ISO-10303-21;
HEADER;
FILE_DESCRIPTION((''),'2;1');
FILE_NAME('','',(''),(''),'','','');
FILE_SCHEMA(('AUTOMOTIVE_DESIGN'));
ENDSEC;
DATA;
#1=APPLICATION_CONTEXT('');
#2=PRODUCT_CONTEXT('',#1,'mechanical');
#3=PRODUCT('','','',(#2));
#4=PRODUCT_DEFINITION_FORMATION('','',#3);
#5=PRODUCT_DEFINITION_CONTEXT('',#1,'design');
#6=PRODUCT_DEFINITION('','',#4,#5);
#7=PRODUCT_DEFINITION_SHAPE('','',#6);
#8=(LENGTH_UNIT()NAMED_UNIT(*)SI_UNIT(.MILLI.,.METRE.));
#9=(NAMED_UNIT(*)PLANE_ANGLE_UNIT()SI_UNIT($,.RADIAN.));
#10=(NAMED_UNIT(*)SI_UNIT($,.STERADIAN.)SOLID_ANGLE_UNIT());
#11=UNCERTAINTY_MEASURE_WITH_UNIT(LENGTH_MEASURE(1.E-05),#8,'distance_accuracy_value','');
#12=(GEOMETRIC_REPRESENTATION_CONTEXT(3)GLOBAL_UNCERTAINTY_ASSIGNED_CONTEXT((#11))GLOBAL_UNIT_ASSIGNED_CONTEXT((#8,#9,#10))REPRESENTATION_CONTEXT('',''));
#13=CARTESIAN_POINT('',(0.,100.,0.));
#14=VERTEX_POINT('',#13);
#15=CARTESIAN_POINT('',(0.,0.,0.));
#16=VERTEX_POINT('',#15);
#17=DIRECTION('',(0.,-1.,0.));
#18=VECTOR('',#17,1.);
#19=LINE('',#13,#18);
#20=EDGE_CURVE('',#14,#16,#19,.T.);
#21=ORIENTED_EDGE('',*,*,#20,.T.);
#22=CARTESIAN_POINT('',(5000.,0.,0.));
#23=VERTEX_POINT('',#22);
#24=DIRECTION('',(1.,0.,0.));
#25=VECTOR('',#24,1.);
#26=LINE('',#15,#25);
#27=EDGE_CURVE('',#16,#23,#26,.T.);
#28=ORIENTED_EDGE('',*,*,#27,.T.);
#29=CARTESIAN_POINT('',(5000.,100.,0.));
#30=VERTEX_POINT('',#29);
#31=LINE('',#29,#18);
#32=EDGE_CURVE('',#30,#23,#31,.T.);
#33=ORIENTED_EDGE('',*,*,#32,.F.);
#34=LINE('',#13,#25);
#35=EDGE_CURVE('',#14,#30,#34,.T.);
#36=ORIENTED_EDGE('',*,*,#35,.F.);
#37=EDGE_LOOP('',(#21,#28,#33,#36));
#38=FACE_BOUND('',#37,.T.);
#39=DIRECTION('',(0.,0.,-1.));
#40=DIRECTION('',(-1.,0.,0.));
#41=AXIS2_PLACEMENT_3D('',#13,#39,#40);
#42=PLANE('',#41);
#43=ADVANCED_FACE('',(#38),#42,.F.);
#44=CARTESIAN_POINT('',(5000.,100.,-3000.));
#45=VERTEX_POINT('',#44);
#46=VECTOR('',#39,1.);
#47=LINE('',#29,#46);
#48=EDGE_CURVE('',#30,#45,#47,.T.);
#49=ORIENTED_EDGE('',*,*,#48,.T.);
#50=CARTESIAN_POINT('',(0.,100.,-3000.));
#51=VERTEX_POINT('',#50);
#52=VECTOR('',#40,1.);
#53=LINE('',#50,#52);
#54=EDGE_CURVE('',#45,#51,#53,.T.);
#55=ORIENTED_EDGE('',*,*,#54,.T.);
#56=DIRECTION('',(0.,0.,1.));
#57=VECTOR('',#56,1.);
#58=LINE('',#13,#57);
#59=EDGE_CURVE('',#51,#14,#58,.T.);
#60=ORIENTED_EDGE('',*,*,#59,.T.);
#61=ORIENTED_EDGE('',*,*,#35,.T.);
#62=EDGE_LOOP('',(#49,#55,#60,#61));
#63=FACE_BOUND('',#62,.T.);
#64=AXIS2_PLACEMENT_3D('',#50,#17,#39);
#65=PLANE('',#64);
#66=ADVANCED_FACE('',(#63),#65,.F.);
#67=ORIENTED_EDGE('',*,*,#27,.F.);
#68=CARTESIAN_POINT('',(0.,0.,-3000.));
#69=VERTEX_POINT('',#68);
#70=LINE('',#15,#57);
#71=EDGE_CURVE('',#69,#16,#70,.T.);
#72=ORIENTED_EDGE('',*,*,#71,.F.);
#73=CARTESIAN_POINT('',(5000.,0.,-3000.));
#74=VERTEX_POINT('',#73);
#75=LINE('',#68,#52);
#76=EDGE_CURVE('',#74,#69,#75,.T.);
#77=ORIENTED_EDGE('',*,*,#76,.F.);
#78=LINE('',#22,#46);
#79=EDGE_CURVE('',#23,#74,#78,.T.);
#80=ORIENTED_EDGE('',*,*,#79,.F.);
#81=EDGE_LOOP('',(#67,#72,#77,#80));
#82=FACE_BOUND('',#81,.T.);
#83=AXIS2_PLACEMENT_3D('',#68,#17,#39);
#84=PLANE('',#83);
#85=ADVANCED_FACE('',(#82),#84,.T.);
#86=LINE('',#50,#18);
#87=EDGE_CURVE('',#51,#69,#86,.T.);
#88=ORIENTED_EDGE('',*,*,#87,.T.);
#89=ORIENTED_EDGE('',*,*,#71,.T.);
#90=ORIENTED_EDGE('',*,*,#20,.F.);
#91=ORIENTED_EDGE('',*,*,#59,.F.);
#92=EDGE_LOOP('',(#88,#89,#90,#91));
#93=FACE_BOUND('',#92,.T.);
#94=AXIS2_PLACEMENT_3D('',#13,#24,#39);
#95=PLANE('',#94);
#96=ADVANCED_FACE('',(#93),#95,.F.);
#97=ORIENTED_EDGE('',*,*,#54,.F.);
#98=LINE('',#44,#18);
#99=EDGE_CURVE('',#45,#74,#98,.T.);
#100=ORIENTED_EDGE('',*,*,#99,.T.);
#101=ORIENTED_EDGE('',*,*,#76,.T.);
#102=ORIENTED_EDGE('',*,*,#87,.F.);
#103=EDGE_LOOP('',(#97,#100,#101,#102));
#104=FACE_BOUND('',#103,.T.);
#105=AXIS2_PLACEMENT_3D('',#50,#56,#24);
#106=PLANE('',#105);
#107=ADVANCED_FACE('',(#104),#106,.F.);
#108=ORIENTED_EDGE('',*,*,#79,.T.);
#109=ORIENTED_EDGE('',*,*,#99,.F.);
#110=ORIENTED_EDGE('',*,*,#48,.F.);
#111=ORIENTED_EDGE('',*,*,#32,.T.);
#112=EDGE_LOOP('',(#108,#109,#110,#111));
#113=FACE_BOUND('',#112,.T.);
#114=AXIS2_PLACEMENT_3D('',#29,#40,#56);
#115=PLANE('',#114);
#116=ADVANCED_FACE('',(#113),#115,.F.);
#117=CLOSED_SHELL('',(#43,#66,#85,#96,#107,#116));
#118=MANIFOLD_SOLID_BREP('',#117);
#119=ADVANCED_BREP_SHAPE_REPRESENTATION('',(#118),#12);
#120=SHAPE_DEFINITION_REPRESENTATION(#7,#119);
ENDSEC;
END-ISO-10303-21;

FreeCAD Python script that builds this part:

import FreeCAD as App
import Part
import Sketcher

V = App.Vector
Q = App.Units.Quantity

doc = App.newDocument("Part")
body = doc.addObject("PartDesign::Body", "Body")

# Sketch on XZ plane
sketch1 = doc.addObject("Sketcher::SketchObject", "Sketch")
body.addObject(sketch1)
sketch1.AttachmentSupport = (doc.XZ_Plane, [""])
sketch1.MapMode = "FlatFace"
sketch1.addGeometry(Part.LineSegment(V(0, -3000, 0), V(0, 0, 0)), False)
sketch1.addGeometry(Part.LineSegment(V(0, 0, 0), V(5000, 0, 0)), False)
sketch1.addGeometry(Part.LineSegment(V(5000, 0, 0), V(5000, -3000, 0)), False)
sketch1.addGeometry(Part.LineSegment(V(5000, -3000, 0), V(0, -3000, 0)), False)
sketch1.addConstraint(Sketcher.Constraint("Coincident", 0, 2, 1, 1))
sketch1.addConstraint(Sketcher.Constraint("Coincident", 1, 2, 2, 1))
sketch1.addConstraint(Sketcher.Constraint("Coincident", 2, 2, 3, 1))
sketch1.addConstraint(Sketcher.Constraint("Coincident", 3, 2, 0, 1))
sketch1.addConstraint(Sketcher.Constraint("Vertical", 0))
sketch1.addConstraint(Sketcher.Constraint("Horizontal", 1))
sketch1.addConstraint(Sketcher.Constraint("Vertical", 2))
sketch1.addConstraint(Sketcher.Constraint("Horizontal", 3))
sketch1.addConstraint(Sketcher.Constraint("Coincident", 0, 2, -1, 1))
sketch1.addConstraint(Sketcher.Constraint("DistanceX", 1, 1, 1, 2, Q("5000 mm")))
sketch1.addConstraint(Sketcher.Constraint("DistanceY", 0, 1, 0, 2, Q("3000 mm")))
pad1 = doc.addObject("PartDesign::Pad", "Pad")
body.addObject(pad1)
pad1.Profile = sketch1
pad1.Length = 100
pad1.Reversed = True

doc.recompute()
